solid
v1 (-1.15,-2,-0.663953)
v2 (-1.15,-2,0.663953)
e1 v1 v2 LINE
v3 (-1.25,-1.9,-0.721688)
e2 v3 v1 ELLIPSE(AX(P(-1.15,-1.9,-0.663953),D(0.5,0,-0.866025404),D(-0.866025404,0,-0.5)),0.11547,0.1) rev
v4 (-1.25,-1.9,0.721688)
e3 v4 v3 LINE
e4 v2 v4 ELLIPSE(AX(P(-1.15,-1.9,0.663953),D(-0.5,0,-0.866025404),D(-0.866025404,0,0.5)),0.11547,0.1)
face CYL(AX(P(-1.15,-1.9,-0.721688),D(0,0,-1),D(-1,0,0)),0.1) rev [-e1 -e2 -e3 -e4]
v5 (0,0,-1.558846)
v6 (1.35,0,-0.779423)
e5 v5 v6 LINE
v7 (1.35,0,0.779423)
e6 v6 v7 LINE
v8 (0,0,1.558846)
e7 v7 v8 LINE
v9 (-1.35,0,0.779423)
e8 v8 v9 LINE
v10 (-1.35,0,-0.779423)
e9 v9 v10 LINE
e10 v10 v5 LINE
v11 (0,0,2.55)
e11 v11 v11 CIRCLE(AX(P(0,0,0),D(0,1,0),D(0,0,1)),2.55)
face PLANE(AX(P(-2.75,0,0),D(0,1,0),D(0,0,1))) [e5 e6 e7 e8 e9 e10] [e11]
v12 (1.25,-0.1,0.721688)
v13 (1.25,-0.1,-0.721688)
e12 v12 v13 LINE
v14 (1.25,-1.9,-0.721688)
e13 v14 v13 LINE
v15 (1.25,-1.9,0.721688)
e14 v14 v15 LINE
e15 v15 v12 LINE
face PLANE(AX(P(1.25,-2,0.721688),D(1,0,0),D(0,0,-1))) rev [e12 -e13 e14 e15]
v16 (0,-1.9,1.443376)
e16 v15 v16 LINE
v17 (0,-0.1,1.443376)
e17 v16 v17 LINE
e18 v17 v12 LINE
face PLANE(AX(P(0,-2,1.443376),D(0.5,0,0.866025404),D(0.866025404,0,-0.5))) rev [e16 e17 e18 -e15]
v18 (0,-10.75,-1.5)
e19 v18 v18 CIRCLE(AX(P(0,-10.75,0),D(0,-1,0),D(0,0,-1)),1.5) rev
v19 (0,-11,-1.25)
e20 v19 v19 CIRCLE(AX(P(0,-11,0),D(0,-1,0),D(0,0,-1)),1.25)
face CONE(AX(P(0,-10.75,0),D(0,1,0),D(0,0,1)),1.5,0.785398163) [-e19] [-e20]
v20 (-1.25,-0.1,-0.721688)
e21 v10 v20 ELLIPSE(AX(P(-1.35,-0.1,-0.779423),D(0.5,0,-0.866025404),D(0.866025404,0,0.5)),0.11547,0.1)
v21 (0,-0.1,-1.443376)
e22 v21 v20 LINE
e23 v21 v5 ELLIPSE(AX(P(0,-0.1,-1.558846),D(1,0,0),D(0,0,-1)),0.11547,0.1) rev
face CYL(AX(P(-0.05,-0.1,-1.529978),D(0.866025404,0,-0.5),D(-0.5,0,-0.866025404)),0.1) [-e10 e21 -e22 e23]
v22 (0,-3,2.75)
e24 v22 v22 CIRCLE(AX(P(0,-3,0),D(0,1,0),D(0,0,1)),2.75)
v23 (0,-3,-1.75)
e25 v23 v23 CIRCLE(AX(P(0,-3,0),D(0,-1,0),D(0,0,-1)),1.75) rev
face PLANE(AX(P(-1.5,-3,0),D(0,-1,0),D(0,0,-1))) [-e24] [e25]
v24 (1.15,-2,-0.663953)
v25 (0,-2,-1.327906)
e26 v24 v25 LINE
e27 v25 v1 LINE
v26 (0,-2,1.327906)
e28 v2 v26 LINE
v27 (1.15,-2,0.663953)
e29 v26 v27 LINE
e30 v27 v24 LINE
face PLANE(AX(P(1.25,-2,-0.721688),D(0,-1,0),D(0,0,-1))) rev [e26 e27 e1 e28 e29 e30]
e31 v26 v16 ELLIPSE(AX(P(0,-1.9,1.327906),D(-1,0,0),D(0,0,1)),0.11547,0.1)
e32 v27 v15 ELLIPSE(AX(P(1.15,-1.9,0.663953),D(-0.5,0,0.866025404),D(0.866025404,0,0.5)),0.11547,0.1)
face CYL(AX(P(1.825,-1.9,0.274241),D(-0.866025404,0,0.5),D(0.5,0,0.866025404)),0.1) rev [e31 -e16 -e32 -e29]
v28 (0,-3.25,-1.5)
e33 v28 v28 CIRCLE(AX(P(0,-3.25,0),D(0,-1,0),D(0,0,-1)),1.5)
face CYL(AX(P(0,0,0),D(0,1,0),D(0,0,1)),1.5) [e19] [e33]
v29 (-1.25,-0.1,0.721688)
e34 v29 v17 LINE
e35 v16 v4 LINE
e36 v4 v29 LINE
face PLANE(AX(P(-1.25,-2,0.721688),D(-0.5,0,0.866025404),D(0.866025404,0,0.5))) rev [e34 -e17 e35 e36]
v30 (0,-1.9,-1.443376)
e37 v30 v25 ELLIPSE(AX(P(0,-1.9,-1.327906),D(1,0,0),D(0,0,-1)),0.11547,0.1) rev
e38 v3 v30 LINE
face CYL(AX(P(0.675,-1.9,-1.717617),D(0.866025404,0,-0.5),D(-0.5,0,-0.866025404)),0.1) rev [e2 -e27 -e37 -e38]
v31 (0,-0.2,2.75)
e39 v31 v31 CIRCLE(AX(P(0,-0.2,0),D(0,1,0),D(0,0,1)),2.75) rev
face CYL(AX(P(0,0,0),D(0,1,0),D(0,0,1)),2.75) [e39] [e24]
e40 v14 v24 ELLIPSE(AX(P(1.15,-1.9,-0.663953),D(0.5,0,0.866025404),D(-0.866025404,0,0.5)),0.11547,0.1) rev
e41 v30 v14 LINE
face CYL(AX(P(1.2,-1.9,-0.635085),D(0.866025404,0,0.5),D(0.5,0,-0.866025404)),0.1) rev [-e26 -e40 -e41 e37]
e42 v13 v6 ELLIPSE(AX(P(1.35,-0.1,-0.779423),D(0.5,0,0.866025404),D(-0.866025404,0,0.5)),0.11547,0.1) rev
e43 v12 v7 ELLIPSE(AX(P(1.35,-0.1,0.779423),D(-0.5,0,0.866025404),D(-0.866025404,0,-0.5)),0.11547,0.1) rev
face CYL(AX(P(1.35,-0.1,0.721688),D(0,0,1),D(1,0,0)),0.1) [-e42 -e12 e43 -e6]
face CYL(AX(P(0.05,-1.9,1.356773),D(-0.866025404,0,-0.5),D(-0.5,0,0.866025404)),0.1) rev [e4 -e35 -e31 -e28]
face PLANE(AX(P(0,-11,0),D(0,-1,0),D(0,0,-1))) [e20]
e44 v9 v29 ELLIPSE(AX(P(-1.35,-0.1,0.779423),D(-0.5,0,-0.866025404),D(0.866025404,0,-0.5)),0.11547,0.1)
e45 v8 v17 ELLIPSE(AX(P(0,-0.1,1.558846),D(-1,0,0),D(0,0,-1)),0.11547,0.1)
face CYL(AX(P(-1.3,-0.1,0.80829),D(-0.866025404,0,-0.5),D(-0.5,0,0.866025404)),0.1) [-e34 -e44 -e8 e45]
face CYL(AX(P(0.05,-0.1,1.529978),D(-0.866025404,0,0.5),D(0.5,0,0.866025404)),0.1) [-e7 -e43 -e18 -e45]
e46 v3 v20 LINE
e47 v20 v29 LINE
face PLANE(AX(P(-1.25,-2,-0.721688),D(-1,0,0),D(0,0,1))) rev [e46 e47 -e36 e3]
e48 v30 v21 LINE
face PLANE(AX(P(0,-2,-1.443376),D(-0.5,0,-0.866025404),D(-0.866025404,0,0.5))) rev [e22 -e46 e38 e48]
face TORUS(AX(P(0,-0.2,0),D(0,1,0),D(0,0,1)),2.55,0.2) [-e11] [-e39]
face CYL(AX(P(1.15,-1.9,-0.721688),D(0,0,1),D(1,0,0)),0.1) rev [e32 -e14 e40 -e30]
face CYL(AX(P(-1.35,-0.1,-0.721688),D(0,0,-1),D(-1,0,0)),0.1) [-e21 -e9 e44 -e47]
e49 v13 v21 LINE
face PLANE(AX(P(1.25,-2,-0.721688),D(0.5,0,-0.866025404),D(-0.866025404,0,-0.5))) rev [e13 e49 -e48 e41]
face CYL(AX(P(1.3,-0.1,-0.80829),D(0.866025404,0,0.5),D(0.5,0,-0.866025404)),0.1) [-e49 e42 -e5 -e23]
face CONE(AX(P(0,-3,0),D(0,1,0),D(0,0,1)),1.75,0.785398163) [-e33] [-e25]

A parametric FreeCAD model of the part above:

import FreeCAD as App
import Part
import Sketcher

V = App.Vector
Q = App.Units.Quantity


def edges_at(feature, points):
    """Names of the edges that pass closest to the given points."""
    edges = feature.Shape.Edges
    near = lambda p: min(range(len(edges)), key=lambda i: edges[i].distToShape(Part.Vertex(*p))[0])
    return sorted({f"Edge{near(p) + 1}" for p in points})


def add_polygon(sketch, points):
    """Adds a closed chain of lines whose ends are joined by coincident constraints."""
    first, n = sketch.GeometryCount, len(points)
    for a, b in zip(points, points[1:] + points[:1]):
        sketch.addGeometry(Part.LineSegment(App.Vector(*a, 0), App.Vector(*b, 0)), False)
    for i in range(n):
        sketch.addConstraint(Sketcher.Constraint("Coincident", first + i, 2, first + (i + 1) % n, 1))

doc = App.newDocument("Part")
body = doc.addObject("PartDesign::Body", "Body")

sketch1 = body.newObject("Sketcher::SketchObject", "Sketch")
sketch1.AttachmentSupport = (doc.getObject("XY_Plane"), [""])
sketch1.MapMode = "FlatFace"
add_polygon(sketch1, [(-1.5, -11), (0, -11), (0, 0), (-2.8, 0), (-2.8, -3), (-1.5, -3)])
sketch1.addConstraint([
    Sketcher.Constraint("Horizontal", 0),
    Sketcher.Constraint("Vertical", 1),
    Sketcher.Constraint("Horizontal", 2),
    Sketcher.Constraint("Vertical", 3),
    Sketcher.Constraint("Horizontal", 4),
    Sketcher.Constraint("Vertical", 5),
    Sketcher.Constraint("Coincident", 1, 2, -1, 1),
    Sketcher.Constraint("DistanceY", 1, 1, 1, 2, Q("11 mm")),
    Sketcher.Constraint("DistanceY", 3, 2, 3, 1, Q("3 mm")),
    Sketcher.Constraint("DistanceX", 0, 1, 0, 2, Q("1.5 mm")),
    Sketcher.Constraint("DistanceX", 2, 2, 2, 1, Q("2.75 mm")),
])
revolution = body.newObject("PartDesign::Revolution", "Revolution")
revolution.Profile = sketch1
revolution.ReferenceAxis = (sketch1, ["V_Axis"])
revolution.Angle = 360
doc.recompute()

chamfer = body.newObject("PartDesign::Chamfer", "Chamfer")
chamfer.Base = (revolution, edges_at(revolution, [(1.5, -3, 0), (1.5, -11, 0)]))
chamfer.Size = 0.25
doc.recompute()

fillet = body.newObject("PartDesign::Fillet", "Fillet")
fillet.Base = (chamfer, edges_at(chamfer, [(2.75, 0, 0)]))
fillet.Radius = 0.2

sketch2 = body.newObject("Sketcher::SketchObject", "Sketch001")
sketch2.AttachmentSupport = (doc.getObject("XZ_Plane"), [""])
sketch2.MapMode = "FlatFace"
add_polygon(sketch2, [(0, -1.4), (-1.2, -0.7), (-1.2, 0.7), (0, 1.4), (1.2, 0.7), (1.2, -0.7)])
sketch2.addConstraint([
    Sketcher.Constraint("Vertical", 1),
    Sketcher.Constraint("Vertical", 4),
    Sketcher.Constraint("Symmetric", 0, 2, 3, 2, -1, 1),
    Sketcher.Constraint("Symmetric", 2, 2, 5, 2, -1, 1),
    Sketcher.Constraint("PointOnObject", 2, 2, -2),
    Sketcher.Constraint("Parallel", 2, 5),
    Sketcher.Constraint("Horizontal", 1, 2, 3, 2),
    Sketcher.Constraint("Angle", 0, Q("150 deg")),
    Sketcher.Constraint("DistanceX", 1, 2, 3, 2, Q("2.5 mm")),
    Sketcher.Constraint("DistanceY", 1, 1, 1, 2, Q("1.443376 mm")),
])
pocket1 = body.newObject("PartDesign::Pocket", "Pocket")
pocket1.Profile = sketch2
pocket1.Length = 2
pocket1.Reversed = True
doc.recompute()

fillet2 = body.newObject("PartDesign::Fillet", "Fillet001")
fillet2.Base = (pocket1, edges_at(pocket1, [
    (0.625, -2, -1.083),
    (1.25, -2, 0),
    (0.625, -2, 1.083),
    (-0.625, -2, 1.083),
    (-1.25, -2, 0),
    (-0.625, -2, -1.083),
    (0.625, 0, -1.083),
    (-0.625, 0, -1.083),
    (-1.25, 0, 0),
    (-0.625, 0, 1.083),
    (0.625, 0, 1.083),
    (1.25, 0, 0),
]))
fillet2.Radius = 0.1

doc.recompute()
